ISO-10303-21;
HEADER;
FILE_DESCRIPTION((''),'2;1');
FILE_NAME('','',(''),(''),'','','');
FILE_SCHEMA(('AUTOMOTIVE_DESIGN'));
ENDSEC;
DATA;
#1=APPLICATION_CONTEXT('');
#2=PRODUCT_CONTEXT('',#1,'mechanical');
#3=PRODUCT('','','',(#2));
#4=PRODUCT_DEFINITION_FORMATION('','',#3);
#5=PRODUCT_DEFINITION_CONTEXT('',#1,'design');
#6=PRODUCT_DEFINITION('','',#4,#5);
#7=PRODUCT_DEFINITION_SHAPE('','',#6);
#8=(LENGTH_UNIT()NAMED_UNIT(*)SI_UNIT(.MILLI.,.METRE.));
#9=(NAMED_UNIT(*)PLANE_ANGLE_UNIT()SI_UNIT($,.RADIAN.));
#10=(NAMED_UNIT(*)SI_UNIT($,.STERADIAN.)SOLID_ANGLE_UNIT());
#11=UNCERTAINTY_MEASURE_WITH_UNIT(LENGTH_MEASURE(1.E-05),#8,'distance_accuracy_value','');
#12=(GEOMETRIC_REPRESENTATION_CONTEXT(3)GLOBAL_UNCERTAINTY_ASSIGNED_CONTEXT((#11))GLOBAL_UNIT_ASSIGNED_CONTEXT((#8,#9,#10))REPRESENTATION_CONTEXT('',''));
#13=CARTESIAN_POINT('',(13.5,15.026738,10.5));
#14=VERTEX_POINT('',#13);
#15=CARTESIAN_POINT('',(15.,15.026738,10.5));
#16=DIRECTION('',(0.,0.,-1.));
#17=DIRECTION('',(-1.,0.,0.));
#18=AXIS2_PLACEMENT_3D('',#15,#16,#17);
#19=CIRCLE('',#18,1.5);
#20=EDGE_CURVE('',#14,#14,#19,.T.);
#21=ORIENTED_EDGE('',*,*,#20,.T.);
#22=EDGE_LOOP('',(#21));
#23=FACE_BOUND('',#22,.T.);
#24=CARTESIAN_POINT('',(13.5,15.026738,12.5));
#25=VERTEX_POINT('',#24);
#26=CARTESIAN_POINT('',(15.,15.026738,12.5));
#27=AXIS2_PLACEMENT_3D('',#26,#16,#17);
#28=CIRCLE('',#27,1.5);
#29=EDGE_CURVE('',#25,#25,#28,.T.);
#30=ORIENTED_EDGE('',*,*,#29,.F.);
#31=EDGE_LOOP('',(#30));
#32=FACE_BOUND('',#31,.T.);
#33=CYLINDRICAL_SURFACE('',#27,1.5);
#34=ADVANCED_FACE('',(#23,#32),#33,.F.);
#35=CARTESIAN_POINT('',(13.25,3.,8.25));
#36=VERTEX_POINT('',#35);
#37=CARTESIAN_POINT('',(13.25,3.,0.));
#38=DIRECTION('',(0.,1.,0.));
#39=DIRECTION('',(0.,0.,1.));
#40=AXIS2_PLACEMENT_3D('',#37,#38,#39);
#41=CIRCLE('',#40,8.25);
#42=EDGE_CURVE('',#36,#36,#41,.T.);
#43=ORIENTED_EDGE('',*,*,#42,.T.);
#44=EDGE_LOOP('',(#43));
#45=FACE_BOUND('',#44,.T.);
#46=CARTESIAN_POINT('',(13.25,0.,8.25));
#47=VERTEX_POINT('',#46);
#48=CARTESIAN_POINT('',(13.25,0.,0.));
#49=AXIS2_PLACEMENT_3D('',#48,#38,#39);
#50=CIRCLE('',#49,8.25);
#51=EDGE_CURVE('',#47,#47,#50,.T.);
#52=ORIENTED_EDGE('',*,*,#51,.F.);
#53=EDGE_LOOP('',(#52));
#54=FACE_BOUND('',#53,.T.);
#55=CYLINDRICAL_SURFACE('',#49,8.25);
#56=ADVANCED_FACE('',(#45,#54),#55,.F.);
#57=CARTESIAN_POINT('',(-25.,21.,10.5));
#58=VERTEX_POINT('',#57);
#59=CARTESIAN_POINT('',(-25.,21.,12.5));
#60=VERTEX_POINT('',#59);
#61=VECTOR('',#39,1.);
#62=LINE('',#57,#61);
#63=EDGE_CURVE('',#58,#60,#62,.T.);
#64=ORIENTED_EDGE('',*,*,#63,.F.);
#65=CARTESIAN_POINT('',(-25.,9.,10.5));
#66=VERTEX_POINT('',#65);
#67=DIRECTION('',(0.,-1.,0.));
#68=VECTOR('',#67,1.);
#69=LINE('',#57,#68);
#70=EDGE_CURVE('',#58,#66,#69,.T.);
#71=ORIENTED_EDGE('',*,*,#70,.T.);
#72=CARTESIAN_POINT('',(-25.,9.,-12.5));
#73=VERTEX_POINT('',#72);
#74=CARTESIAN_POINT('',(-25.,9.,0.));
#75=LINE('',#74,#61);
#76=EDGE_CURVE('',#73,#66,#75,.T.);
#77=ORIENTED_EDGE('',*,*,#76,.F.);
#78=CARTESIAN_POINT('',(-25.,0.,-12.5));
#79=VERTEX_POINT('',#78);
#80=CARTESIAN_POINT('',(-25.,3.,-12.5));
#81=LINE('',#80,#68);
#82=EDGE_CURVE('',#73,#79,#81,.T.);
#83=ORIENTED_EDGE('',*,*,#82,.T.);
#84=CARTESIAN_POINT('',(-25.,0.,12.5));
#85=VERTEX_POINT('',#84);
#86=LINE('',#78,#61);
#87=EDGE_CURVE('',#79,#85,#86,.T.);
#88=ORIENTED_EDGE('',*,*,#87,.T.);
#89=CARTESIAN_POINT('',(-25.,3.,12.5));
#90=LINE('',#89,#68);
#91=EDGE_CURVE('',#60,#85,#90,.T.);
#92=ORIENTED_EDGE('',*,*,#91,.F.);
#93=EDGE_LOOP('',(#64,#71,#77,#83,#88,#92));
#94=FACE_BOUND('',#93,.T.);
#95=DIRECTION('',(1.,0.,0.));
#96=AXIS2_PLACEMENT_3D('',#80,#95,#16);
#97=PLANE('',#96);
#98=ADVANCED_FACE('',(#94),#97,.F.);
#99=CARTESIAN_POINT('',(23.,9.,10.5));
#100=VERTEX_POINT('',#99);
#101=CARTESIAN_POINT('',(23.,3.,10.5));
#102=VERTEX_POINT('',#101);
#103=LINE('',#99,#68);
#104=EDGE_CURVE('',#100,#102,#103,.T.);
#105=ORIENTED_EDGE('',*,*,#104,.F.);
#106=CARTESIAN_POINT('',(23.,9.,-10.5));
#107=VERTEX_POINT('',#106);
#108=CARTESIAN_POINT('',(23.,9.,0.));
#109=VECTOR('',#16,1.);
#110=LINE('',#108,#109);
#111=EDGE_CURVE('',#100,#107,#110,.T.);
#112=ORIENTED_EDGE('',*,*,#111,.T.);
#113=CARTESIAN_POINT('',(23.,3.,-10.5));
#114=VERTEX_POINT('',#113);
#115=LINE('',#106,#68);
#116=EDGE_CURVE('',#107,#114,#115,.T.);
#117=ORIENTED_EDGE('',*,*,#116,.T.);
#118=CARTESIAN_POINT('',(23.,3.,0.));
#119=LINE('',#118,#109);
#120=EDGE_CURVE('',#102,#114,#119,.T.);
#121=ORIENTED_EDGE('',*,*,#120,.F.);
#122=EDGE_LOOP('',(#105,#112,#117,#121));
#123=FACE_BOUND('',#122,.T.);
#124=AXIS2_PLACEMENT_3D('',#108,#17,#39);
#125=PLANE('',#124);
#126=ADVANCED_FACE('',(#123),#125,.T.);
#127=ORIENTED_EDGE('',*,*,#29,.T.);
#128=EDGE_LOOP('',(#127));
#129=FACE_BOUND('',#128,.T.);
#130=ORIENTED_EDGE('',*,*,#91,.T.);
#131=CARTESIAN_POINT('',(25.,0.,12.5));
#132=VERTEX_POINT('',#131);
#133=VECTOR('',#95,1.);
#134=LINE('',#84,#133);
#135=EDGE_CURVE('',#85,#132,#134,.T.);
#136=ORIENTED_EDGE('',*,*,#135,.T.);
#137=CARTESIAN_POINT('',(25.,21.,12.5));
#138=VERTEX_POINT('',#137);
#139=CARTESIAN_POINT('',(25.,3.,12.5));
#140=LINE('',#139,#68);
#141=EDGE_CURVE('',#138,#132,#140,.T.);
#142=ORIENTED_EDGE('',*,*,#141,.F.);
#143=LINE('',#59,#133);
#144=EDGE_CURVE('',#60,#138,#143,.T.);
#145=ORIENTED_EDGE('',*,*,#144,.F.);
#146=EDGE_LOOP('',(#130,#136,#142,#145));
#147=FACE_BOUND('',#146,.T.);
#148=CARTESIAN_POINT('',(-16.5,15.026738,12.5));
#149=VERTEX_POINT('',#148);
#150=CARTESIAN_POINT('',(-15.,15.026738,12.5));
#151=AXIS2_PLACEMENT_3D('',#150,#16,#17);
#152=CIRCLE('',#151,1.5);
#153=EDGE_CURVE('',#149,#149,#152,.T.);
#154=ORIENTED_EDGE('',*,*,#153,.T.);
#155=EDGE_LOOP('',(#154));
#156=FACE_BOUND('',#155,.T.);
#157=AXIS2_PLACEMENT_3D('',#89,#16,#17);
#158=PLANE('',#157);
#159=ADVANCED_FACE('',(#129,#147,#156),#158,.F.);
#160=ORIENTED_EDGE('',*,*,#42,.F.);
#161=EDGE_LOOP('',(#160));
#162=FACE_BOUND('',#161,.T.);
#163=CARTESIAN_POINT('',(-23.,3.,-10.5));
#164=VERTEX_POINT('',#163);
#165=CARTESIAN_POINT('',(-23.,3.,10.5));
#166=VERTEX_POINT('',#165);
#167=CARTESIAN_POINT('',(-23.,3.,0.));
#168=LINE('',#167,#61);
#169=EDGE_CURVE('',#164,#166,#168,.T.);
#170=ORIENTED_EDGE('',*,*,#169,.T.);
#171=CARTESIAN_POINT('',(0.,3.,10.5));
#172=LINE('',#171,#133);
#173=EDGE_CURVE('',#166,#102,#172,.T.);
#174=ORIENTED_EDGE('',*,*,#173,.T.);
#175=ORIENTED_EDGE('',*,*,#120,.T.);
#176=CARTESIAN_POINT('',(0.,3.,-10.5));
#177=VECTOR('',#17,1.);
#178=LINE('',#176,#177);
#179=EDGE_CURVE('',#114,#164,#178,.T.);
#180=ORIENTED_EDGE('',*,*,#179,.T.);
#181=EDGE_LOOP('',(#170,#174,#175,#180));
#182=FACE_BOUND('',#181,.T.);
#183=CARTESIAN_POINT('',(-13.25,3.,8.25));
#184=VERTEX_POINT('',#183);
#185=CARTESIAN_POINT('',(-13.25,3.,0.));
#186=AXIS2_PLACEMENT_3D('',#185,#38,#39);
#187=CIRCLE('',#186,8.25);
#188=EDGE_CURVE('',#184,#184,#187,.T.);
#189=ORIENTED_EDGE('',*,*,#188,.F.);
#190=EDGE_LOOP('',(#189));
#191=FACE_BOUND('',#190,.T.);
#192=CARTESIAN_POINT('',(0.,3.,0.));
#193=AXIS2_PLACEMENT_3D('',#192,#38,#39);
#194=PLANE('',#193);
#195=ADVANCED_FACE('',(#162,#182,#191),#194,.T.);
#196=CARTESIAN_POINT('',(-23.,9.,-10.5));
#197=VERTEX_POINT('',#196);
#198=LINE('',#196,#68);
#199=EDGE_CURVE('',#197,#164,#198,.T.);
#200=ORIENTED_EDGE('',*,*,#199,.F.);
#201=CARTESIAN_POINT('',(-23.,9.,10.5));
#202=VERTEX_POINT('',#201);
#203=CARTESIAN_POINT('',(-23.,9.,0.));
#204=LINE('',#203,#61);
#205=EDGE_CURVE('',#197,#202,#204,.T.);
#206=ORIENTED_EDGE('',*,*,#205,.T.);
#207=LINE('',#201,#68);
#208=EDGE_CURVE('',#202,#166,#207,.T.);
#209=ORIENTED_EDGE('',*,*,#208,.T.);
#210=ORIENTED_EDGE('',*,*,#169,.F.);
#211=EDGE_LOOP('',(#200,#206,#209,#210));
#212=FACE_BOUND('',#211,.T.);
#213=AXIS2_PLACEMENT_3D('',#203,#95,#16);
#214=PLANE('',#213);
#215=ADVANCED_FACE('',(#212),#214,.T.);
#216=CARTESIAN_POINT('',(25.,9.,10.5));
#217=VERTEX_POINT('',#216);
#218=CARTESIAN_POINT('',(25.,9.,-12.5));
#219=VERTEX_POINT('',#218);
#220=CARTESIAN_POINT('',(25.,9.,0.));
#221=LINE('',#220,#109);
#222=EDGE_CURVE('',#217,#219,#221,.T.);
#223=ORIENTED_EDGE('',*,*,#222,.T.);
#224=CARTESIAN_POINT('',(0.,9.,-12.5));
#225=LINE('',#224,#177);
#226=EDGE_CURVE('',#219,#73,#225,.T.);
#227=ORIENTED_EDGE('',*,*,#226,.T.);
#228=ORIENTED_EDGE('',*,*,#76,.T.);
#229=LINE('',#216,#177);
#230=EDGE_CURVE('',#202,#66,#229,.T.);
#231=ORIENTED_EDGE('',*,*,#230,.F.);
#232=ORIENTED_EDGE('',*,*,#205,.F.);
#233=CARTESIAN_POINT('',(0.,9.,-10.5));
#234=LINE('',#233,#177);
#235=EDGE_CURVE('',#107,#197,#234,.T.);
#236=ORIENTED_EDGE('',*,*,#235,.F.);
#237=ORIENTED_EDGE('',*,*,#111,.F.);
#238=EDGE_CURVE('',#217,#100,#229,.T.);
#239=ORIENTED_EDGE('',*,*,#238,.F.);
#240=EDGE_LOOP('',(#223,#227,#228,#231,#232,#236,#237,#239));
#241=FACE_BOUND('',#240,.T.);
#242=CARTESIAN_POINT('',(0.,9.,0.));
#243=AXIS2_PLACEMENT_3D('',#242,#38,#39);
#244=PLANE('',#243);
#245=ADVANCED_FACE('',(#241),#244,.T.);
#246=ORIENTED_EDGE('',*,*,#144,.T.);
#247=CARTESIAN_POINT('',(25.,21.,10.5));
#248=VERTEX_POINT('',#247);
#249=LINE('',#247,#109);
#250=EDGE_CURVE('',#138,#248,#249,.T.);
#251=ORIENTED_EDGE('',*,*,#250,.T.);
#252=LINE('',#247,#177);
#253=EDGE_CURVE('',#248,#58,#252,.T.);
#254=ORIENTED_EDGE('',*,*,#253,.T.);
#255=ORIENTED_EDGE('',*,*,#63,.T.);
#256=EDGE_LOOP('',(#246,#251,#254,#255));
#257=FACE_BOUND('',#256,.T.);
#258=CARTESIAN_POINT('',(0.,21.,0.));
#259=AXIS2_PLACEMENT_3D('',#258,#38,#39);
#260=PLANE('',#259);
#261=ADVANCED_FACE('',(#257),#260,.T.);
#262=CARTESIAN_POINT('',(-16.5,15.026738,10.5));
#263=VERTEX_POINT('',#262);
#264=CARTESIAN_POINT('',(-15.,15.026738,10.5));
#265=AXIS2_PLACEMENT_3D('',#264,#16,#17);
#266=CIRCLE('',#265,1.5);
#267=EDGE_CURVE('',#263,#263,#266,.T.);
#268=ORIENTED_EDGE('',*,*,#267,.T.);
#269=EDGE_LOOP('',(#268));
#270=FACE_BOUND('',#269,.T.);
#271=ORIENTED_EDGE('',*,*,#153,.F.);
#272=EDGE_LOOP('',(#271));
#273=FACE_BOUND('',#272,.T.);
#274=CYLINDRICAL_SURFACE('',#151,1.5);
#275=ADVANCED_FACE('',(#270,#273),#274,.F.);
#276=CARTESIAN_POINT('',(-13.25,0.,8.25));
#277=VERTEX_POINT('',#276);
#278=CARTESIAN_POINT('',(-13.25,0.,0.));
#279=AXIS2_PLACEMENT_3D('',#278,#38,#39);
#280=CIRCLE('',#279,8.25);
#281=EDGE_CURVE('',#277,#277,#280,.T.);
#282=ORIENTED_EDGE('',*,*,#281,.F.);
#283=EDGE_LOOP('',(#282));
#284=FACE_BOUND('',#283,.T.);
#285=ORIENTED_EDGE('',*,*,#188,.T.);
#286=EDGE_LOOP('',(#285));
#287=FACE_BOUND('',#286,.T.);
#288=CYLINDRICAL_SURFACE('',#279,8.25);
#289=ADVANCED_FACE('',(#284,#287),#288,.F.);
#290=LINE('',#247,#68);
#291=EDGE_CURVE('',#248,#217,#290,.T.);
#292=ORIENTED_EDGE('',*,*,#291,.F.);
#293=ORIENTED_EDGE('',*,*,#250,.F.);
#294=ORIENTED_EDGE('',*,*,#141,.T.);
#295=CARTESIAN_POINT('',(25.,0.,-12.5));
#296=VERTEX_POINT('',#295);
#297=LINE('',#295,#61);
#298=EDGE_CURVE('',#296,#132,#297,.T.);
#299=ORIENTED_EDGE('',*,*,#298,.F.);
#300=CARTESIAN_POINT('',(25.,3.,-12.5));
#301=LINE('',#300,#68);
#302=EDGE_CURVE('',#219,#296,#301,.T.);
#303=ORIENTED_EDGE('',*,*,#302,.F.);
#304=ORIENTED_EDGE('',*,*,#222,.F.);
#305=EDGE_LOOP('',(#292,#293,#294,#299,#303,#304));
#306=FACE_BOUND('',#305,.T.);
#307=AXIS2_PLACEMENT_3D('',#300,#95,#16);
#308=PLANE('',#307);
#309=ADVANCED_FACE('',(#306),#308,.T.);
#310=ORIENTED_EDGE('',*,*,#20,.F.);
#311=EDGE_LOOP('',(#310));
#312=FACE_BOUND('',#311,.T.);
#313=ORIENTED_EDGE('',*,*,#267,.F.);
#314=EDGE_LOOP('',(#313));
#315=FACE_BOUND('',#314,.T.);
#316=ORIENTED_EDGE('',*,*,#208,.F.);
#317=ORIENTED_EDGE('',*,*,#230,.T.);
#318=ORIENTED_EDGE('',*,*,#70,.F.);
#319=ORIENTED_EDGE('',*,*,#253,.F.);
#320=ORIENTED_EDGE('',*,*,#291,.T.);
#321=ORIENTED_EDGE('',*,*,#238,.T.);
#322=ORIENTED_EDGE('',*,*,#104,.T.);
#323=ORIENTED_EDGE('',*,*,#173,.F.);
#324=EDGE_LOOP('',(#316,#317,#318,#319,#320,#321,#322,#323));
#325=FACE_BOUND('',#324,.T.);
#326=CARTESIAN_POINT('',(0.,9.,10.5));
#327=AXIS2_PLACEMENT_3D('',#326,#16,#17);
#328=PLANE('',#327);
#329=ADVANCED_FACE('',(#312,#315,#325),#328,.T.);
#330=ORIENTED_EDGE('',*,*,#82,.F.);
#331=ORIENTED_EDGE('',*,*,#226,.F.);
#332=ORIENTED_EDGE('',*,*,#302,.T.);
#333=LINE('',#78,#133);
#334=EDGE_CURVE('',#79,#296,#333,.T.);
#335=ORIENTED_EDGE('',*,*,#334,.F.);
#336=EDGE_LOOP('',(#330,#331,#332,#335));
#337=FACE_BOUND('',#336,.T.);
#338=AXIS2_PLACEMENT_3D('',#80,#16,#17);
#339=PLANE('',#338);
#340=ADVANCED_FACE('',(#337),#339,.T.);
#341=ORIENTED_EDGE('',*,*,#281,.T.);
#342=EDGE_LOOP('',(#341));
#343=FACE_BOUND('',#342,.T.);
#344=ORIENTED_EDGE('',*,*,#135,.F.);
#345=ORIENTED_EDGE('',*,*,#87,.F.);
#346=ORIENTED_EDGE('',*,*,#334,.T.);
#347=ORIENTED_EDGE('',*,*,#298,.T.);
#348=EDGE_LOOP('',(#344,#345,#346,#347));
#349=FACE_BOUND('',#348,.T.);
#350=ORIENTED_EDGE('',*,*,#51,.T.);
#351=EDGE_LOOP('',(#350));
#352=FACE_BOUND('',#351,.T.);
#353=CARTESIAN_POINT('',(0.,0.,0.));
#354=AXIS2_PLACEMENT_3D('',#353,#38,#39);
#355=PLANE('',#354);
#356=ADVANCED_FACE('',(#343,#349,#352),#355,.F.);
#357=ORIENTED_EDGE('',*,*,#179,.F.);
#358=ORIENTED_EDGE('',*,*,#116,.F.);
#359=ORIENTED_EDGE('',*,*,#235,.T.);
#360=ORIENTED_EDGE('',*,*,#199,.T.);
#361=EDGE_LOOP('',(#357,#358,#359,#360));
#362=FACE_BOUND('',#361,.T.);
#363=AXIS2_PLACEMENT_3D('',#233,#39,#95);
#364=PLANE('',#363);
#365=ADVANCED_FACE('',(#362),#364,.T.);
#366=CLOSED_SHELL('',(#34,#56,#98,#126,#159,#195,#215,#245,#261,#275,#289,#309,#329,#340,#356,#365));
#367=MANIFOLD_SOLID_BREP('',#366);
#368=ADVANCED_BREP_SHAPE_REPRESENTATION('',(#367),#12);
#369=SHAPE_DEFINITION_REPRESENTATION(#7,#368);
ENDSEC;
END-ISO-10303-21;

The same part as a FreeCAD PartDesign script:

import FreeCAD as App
import Part
import Sketcher

doc = App.newDocument("Part")
body = doc.addObject("PartDesign::Body", "Body")

sketch1 = doc.addObject("Sketcher::SketchObject", "Sketch")
body.addObject(sketch1)
sketch1.AttachmentSupport = (doc.XZ_Plane, [""])
sketch1.MapMode = "FlatFace"
sketch1.addGeometry([
    Part.LineSegment(App.Vector(-25, -12, 0), App.Vector(-25, 12, 0)),
    Part.LineSegment(App.Vector(-25, 12, 0), App.Vector(25, 12, 0)),
    Part.LineSegment(App.Vector(25, 12, 0), App.Vector(25, -12, 0)),
    Part.LineSegment(App.Vector(25, -12, 0), App.Vector(-25, -12, 0)),
], False)
sketch1.addConstraint([
    Sketcher.Constraint("Coincident", 0, 2, 1, 1),
    Sketcher.Constraint("Coincident", 1, 2, 2, 1),
    Sketcher.Constraint("Coincident", 2, 2, 3, 1),
    Sketcher.Constraint("Coincident", 3, 2, 0, 1),
    Sketcher.Constraint("Vertical", 0),
    Sketcher.Constraint("Horizontal", 1),
    Sketcher.Constraint("Vertical", 2),
    Sketcher.Constraint("Horizontal", 3),
    Sketcher.Constraint("Symmetric", 0, 2, 2, 2, -1, 1),
    Sketcher.Constraint("DistanceX", 1, 1, 1, 2, 50.0),
    Sketcher.Constraint("DistanceY", 0, 1, 0, 2, 25.0),
])
pad1 = doc.addObject("PartDesign::Pad", "Pad")
body.addObject(pad1)
pad1.Profile = sketch1
pad1.Length = 3
pad1.Reversed = True

sketch2 = doc.addObject("Sketcher::SketchObject", "Sketch001")
body.addObject(sketch2)
sketch2.AttachmentSupport = (doc.XZ_Plane, [""])
sketch2.MapMode = "FlatFace"
sketch2.AttachmentOffset = App.Placement(App.Vector(0, 0, -3), App.Rotation())
sketch2.addGeometry([
    Part.Circle(App.Vector(13, 0, 0), App.Vector(0, 0, 1), 8),
    Part.Circle(App.Vector(-13, 0, 0), App.Vector(0, 0, 1), 8),
], False)
sketch2.addConstraint([
    Sketcher.Constraint("Equal", 0, 1),
    Sketcher.Constraint("Symmetric", 0, 3, 1, 3, -1, 1),
    Sketcher.Constraint("PointOnObject", 0, 3, -1),
    Sketcher.Constraint("Diameter", 0, 16.5),
    Sketcher.Constraint("DistanceX", 1, 3, 0, 3, 26.5),
])
pocket1 = doc.addObject("PartDesign::Pocket", "Pocket")
body.addObject(pocket1)
pocket1.Profile = sketch2
pocket1.Type = "ThroughAll"
pocket1.Reversed = True

sketch3 = doc.addObject("Sketcher::SketchObject", "Sketch002")
body.addObject(sketch3)
sketch3.AttachmentSupport = (doc.XZ_Plane, [""])
sketch3.MapMode = "FlatFace"
sketch3.AttachmentOffset = App.Placement(App.Vector(0, 0, -3), App.Rotation())
sketch3.addGeometry([
    Part.LineSegment(App.Vector(-25, -12, 0), App.Vector(-25, 12, 0)),
    Part.LineSegment(App.Vector(-25, 12, 0), App.Vector(25, 12, 0)),
    Part.LineSegment(App.Vector(25, 12, 0), App.Vector(25, -12, 0)),
    Part.LineSegment(App.Vector(25, -12, 0), App.Vector(-25, -12, 0)),
    Part.LineSegment(App.Vector(23, 10, 0), App.Vector(-23, 10, 0)),
    Part.LineSegment(App.Vector(-23, 10, 0), App.Vector(-23, -10, 0)),
    Part.LineSegment(App.Vector(-23, -10, 0), App.Vector(23, -10, 0)),
    Part.LineSegment(App.Vector(23, -10, 0), App.Vector(23, 10, 0)),
], False)
sketch3.addConstraint([
    Sketcher.Constraint("Coincident", 0, 2, 1, 1),
    Sketcher.Constraint("Coincident", 1, 2, 2, 1),
    Sketcher.Constraint("Coincident", 2, 2, 3, 1),
    Sketcher.Constraint("Coincident", 3, 2, 0, 1),
    Sketcher.Constraint("Coincident", 4, 2, 5, 1),
    Sketcher.Constraint("Coincident", 5, 2, 6, 1),
    Sketcher.Constraint("Coincident", 6, 2, 7, 1),
    Sketcher.Constraint("Coincident", 7, 2, 4, 1),
    Sketcher.Constraint("Vertical", 0),
    Sketcher.Constraint("Horizontal", 1),
    Sketcher.Constraint("Vertical", 2),
    Sketcher.Constraint("Horizontal", 3),
    Sketcher.Constraint("Horizontal", 4),
    Sketcher.Constraint("Vertical", 5),
    Sketcher.Constraint("Horizontal", 6),
    Sketcher.Constraint("Vertical", 7),
    Sketcher.Constraint("Symmetric", 0, 2, 2, 2, -1, 1),
    Sketcher.Constraint("Symmetric", 4, 2, 6, 2, -1, 1),
    Sketcher.Constraint("DistanceX", 1, 1, 1, 2, 50.0),
    Sketcher.Constraint("DistanceX", 4, 2, 4, 1, 46.0),
    Sketcher.Constraint("DistanceY", 0, 1, 0, 2, 25.0),
    Sketcher.Constraint("DistanceY", 5, 2, 5, 1, 21.0),
])
pad2 = doc.addObject("PartDesign::Pad", "Pad001")
body.addObject(pad2)
pad2.Profile = sketch3
pad2.Length = 6
pad2.Reversed = True

sketch4 = doc.addObject("Sketcher::SketchObject", "Sketch003")
body.addObject(sketch4)
sketch4.AttachmentSupport = (doc.XZ_Plane, [""])
sketch4.MapMode = "FlatFace"
sketch4.AttachmentOffset = App.Placement(App.Vector(0, 0, -9), App.Rotation())
sketch4.addGeometry([
    Part.LineSegment(App.Vector(-25, 10.5, 0), App.Vector(-25, 12.5, 0)),
    Part.LineSegment(App.Vector(-25, 12.5, 0), App.Vector(25, 12.5, 0)),
    Part.LineSegment(App.Vector(25, 12.5, 0), App.Vector(25, 10.5, 0)),
    Part.LineSegment(App.Vector(25, 10.5, 0), App.Vector(-25, 10.5, 0)),
], False)
sketch4.addConstraint([
    Sketcher.Constraint("Coincident", 0, 2, 1, 1),
    Sketcher.Constraint("Coincident", 1, 2, 2, 1),
    Sketcher.Constraint("Coincident", 2, 2, 3, 1),
    Sketcher.Constraint("Coincident", 3, 2, 0, 1),
    Sketcher.Constraint("Vertical", 0),
    Sketcher.Constraint("Horizontal", 1),
    Sketcher.Constraint("Vertical", 2),
    Sketcher.Constraint("Horizontal", 3),
    Sketcher.Constraint("DistanceX", 1, 1, 1, 2, 50.0),
    Sketcher.Constraint("DistanceY", 0, 1, 0, 2, 2.0),
    Sketcher.Constraint("DistanceX", 0, 2, -1, 1, 25.0),
    Sketcher.Constraint("DistanceY", -1, 1, 0, 2, 12.5),
])
pad3 = doc.addObject("PartDesign::Pad", "Pad002")
body.addObject(pad3)
pad3.Profile = sketch4
pad3.Length = 12
pad3.Reversed = True

sketch5 = doc.addObject("Sketcher::SketchObject", "Sketch004")
body.addObject(sketch5)
sketch5.AttachmentSupport = (doc.XY_Plane, [""])
sketch5.MapMode = "FlatFace"
sketch5.AttachmentOffset = App.Placement(App.Vector(0, 0, 10.5), App.Rotation())
sketch5.addGeometry([
    Part.Circle(App.Vector(15, 15, 0), App.Vector(0, 0, 1), 1.5),
    Part.Circle(App.Vector(-15, 15, 0), App.Vector(0, 0, 1), 1.5),
], False)
sketch5.addConstraint([
    Sketcher.Constraint("Equal", 0, 1),
    Sketcher.Constraint("Symmetric", 0, 3, 1, 3, -2),
    Sketcher.Constraint("Diameter", 0, 3.0),
    Sketcher.Constraint("DistanceX", -1, 1, 0, 3, 15.0),
    Sketcher.Constraint("DistanceY", -1, 1, 0, 3, 15.026738),
])
pocket2 = doc.addObject("PartDesign::Pocket", "Pocket001")
body.addObject(pocket2)
pocket2.Profile = sketch5
pocket2.Type = "ThroughAll"
pocket2.Reversed = True

doc.recompute()
